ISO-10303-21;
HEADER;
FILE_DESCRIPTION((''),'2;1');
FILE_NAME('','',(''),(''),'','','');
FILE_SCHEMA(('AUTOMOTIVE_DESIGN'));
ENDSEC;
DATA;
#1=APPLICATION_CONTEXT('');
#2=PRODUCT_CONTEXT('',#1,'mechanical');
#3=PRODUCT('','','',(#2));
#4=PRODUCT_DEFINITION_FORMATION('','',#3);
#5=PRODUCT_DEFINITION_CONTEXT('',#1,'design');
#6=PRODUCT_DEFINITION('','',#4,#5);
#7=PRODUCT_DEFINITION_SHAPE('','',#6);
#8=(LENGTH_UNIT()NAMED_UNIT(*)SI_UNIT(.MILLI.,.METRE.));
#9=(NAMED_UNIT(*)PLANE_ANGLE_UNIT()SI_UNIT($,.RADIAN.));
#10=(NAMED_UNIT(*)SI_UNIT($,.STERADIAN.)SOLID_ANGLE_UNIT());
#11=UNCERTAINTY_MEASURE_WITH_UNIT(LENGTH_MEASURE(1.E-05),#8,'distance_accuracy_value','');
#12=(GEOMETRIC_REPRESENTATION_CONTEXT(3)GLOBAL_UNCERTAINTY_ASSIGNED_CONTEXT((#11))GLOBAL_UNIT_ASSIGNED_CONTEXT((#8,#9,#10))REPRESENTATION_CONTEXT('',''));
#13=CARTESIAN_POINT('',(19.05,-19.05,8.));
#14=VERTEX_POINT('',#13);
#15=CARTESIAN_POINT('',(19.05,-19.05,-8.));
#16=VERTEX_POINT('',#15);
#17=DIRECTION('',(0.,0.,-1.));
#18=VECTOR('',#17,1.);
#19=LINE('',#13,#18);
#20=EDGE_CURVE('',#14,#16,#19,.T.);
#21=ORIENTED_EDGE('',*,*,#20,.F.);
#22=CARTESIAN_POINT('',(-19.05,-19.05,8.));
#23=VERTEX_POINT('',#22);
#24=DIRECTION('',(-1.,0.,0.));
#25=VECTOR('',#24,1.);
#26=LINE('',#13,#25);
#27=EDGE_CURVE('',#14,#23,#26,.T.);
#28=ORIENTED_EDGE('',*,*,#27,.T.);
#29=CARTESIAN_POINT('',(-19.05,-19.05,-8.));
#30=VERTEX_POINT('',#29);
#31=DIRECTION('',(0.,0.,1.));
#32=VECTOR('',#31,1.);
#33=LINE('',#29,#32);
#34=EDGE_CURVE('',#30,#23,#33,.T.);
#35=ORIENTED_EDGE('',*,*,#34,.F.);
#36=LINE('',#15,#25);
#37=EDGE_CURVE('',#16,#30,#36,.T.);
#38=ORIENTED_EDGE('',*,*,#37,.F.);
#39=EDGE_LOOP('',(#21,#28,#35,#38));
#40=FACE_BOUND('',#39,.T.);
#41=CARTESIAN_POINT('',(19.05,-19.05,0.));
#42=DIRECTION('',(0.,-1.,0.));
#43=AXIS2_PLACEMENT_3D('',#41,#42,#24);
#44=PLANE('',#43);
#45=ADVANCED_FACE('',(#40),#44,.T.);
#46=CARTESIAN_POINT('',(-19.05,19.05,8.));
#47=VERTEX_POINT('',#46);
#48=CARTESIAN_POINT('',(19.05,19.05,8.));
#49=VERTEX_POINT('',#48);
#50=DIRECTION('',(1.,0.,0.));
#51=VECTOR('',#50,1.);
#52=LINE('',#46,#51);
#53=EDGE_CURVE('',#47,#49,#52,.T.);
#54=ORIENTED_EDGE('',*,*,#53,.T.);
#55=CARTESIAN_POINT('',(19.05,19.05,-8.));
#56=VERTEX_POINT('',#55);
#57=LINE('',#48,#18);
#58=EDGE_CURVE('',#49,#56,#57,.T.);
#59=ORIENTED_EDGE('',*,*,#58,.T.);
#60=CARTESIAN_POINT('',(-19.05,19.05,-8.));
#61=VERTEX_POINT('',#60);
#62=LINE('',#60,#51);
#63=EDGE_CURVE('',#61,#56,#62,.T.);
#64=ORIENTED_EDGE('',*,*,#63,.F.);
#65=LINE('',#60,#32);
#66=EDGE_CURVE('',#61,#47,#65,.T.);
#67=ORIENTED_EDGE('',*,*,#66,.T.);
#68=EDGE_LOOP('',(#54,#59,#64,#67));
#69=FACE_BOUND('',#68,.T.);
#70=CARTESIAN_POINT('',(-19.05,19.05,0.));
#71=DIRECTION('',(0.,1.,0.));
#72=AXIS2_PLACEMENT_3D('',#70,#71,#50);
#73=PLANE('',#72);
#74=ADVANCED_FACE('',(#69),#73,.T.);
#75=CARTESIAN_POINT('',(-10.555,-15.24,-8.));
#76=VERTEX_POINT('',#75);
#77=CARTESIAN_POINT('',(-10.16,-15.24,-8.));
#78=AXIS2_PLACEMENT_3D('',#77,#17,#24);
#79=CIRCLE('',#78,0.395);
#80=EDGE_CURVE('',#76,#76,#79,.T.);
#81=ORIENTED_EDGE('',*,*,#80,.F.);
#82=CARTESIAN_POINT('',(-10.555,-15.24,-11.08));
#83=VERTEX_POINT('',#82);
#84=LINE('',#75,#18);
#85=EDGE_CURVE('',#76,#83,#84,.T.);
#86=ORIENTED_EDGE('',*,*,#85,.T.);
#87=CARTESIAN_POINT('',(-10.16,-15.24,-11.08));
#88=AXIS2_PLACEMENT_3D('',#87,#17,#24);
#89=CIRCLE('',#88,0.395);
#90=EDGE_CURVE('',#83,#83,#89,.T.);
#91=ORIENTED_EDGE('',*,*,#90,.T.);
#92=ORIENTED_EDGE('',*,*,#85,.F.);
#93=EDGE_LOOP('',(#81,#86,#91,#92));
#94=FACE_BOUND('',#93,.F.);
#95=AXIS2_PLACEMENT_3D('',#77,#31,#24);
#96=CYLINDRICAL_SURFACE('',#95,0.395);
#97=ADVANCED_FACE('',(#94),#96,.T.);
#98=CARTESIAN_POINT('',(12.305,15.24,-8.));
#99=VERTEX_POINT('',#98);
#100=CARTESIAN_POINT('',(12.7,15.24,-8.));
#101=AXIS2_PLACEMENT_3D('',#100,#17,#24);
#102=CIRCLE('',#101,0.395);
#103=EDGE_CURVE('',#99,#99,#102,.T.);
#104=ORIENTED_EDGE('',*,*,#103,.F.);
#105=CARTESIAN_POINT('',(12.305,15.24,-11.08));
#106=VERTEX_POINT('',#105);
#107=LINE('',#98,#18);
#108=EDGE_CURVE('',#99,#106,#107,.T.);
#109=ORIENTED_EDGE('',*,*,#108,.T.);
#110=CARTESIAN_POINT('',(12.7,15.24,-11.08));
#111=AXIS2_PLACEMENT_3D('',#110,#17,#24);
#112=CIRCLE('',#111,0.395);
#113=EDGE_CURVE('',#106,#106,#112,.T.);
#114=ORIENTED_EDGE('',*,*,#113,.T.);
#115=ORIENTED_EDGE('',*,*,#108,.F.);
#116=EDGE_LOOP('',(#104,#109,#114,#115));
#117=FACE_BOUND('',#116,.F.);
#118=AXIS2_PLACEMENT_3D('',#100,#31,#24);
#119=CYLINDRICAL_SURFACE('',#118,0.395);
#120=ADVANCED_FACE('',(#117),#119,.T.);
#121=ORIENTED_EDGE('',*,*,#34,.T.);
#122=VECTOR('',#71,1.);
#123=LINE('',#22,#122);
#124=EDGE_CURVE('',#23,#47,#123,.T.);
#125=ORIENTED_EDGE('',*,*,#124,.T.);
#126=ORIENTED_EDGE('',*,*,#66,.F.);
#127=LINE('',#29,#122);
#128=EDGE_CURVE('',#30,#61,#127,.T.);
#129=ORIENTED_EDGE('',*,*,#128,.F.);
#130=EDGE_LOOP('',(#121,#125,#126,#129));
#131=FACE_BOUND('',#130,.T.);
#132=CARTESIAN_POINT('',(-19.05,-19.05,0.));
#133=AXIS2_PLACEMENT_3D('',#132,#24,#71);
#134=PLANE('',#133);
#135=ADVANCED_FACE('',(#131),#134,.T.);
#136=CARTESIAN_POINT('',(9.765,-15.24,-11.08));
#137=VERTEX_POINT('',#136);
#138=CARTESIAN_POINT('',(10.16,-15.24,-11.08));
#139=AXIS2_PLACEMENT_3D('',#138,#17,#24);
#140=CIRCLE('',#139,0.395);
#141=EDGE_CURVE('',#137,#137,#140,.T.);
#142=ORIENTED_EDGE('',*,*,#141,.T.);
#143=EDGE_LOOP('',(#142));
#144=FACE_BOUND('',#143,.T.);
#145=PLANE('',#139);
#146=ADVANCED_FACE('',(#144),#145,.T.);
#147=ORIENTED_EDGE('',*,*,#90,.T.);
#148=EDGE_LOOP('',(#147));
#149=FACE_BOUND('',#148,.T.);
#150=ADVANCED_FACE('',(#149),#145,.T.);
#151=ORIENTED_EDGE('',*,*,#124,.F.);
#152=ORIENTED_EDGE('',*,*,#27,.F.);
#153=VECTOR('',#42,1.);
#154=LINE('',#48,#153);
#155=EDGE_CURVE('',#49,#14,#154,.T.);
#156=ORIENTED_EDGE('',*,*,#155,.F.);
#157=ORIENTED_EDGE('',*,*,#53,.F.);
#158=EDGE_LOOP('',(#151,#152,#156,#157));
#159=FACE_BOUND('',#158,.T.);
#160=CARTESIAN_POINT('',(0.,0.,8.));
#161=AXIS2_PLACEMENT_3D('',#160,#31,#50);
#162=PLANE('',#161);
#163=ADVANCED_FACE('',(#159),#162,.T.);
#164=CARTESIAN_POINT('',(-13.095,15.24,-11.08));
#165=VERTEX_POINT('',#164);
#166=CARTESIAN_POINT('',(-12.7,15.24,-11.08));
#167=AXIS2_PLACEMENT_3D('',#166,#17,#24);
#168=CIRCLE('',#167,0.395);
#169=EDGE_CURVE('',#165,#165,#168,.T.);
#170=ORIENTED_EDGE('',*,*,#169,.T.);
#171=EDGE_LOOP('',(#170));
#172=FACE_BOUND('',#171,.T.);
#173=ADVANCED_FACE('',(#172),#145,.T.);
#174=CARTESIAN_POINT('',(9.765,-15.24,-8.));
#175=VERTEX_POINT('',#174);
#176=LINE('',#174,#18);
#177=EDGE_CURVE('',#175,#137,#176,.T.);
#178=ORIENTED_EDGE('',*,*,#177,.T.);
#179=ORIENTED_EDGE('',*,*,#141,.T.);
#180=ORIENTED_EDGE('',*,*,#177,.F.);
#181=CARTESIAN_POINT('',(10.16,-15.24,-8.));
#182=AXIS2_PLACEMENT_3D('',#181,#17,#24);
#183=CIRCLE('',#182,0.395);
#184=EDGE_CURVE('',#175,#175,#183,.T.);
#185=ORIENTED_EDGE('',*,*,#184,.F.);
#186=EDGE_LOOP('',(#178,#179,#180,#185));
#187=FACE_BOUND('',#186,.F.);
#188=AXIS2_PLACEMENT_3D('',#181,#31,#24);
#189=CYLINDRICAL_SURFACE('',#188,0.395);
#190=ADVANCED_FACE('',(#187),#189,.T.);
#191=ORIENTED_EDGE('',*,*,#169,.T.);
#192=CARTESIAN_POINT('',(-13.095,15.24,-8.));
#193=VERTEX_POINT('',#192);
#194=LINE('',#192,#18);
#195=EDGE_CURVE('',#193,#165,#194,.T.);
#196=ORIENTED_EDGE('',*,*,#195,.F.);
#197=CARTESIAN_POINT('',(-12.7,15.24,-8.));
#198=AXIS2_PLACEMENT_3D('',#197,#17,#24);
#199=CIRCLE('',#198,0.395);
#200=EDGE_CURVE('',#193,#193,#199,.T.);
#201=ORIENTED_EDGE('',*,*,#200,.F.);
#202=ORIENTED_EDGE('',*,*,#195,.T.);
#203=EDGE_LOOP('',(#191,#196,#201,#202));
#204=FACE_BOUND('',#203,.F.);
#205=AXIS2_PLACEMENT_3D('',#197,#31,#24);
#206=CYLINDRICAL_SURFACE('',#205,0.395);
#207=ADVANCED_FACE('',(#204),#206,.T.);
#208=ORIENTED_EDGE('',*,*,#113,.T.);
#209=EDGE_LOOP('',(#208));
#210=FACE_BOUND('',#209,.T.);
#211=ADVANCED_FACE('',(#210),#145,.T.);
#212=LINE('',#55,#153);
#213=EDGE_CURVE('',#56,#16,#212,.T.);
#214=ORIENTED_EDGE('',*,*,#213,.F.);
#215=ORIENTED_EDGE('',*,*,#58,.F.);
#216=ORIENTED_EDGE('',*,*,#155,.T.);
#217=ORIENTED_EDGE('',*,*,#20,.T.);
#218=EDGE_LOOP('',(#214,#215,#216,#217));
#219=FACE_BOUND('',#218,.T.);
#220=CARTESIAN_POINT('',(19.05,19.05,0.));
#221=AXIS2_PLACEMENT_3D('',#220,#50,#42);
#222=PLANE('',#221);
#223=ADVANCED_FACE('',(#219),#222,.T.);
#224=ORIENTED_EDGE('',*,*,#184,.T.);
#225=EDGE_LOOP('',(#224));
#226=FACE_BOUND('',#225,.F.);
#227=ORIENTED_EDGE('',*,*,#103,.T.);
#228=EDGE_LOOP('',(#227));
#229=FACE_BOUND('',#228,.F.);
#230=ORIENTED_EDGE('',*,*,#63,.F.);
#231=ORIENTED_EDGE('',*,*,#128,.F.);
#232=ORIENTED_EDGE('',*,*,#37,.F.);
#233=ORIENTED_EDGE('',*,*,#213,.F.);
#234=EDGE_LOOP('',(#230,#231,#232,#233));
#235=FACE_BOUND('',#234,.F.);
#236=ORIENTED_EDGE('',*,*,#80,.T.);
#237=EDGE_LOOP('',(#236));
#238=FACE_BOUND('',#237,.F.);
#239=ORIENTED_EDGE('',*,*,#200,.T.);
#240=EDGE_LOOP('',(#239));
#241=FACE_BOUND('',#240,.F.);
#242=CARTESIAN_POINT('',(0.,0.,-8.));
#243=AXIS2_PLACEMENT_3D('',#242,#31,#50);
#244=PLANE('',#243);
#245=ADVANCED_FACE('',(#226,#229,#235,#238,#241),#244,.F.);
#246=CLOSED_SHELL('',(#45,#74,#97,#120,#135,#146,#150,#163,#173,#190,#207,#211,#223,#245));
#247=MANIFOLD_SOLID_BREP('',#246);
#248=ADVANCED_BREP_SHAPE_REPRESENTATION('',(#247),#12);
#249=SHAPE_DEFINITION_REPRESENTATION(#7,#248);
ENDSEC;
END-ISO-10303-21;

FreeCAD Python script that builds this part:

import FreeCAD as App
import Part
import Sketcher

V = App.Vector


def add_polygon(sketch, points):
    """Adds a closed chain of lines whose ends are joined by coincident constraints."""
    first, n = sketch.GeometryCount, len(points)
    for a, b in zip(points, points[1:] + points[:1]):
        sketch.addGeometry(Part.LineSegment(App.Vector(*a, 0), App.Vector(*b, 0)), False)
    for i in range(n):
        sketch.addConstraint(Sketcher.Constraint("Coincident", first + i, 2, first + (i + 1) % n, 1))

doc = App.newDocument("Part")
params = doc.addObject("Spreadsheet::Sheet", "Params")
for row, (alias, value) in enumerate([
    ("sketch1_width", "38.1 mm"),
    ("pad1_length", "16 mm"),
    ("sketch2_diameter", "0.79 mm"),
    ("pad2_length", "5.08 mm"),
    ("sketch3_diameter", "0.79 mm"),
    ("pocket1_length", "2 mm"),
], start=1):
    params.set(f"A{row}", alias)
    params.set(f"B{row}", "=" + value)
    params.setAlias(f"B{row}", alias)

body = doc.addObject("PartDesign::Body", "Body")

# Sketch on XY plane
sketch1 = doc.addObject("Sketcher::SketchObject", "Sketch")
body.addObject(sketch1)
sketch1.AttachmentSupport = (doc.XY_Plane, [""])
sketch1.MapMode = "FlatFace"
add_polygon(sketch1, [(19, 19), (-19, 19), (-19, -19), (19, -19)])  # lines 0-3
sketch1.addConstraint([
    Sketcher.Constraint("Horizontal", 0),
    Sketcher.Constraint("Vertical", 1),
    Sketcher.Constraint("Horizontal", 2),
    Sketcher.Constraint("Vertical", 3),
    Sketcher.Constraint("Symmetric", 0, 2, 2, 2, -1, 1),
    Sketcher.Constraint("Equal", 2, 1),
    Sketcher.Constraint("DistanceX", 0, 2, 0, 1, 38.1),
])
sketch1.setExpression("Constraints[10]", "Params.sketch1_width")
pad1 = doc.addObject("PartDesign::Pad", "Pad")
body.addObject(pad1)
pad1.Profile = sketch1
pad1.setExpression("Length", "Params.pad1_length")
pad1.Midplane = True

# Sketch on XY plane
sketch2 = doc.addObject("Sketcher::SketchObject", "Sketch001")
body.addObject(sketch2)
sketch2.AttachmentSupport = (doc.XY_Plane, [""])
sketch2.MapMode = "FlatFace"
sketch2.AttachmentOffset = App.Placement(V(0, 0, -8), App.Rotation())
sketch2.addGeometry([
    Part.Circle(V(10.16, -15.24, 0), V(0, 0, 1), 0.4),
    Part.Circle(V(12.7, 15.24, 0), V(0, 0, 1), 0.4),
    Part.Circle(V(-12.7, 15.24, 0), V(0, 0, 1), 0.4),
    Part.Circle(V(-10.16, -15.24, 0), V(0, 0, 1), 0.4),
], False)
sketch2.addConstraint([
    Sketcher.Constraint("Equal", 0, 1),
    Sketcher.Constraint("Equal", 1, 2),
    Sketcher.Constraint("Equal", 2, 3),
    Sketcher.Constraint("Symmetric", 1, 3, 2, 3, -2),
    Sketcher.Constraint("Symmetric", 0, 3, 3, 3, -2),
    Sketcher.Constraint("Diameter", 0, 0.79),
    Sketcher.Constraint("DistanceX", -1, 1, 1, 3, 12.7),
    Sketcher.Constraint("DistanceX", -1, 1, 0, 3, 10.16),
    Sketcher.Constraint("DistanceY", 0, 3, -1, 1, 15.24),
    Sketcher.Constraint("DistanceY", -1, 1, 1, 3, 15.24),
])
sketch2.setExpression("Constraints[5]", "Params.sketch2_diameter")
pad2 = doc.addObject("PartDesign::Pad", "Pad001")
body.addObject(pad2)
pad2.Profile = sketch2
pad2.setExpression("Length", "Params.pad2_length")
pad2.Reversed = True

# Sketch on XY plane
sketch3 = doc.addObject("Sketcher::SketchObject", "Sketch002")
body.addObject(sketch3)
sketch3.AttachmentSupport = (doc.XY_Plane, [""])
sketch3.MapMode = "FlatFace"
sketch3.AttachmentOffset = App.Placement(V(0, 0, -13.08), App.Rotation())
sketch3.addGeometry([
    Part.Circle(V(10.16, -15.24, 0), V(0, 0, 1), 0.4),
    Part.Circle(V(-10.16, -15.24, 0), V(0, 0, 1), 0.4),
    Part.Circle(V(-12.7, 15.24, 0), V(0, 0, 1), 0.4),
    Part.Circle(V(12.7, 15.24, 0), V(0, 0, 1), 0.4),
], False)
sketch3.addConstraint([
    Sketcher.Constraint("Equal", 0, 1),
    Sketcher.Constraint("Equal", 1, 2),
    Sketcher.Constraint("Equal", 2, 3),
    Sketcher.Constraint("Symmetric", 0, 3, 1, 3, -2),
    Sketcher.Constraint("Symmetric", 2, 3, 3, 3, -2),
    Sketcher.Constraint("Diameter", 0, 0.79),
    Sketcher.Constraint("DistanceX", 2, 3, -1, 1, 12.7),
    Sketcher.Constraint("DistanceX", -1, 1, 0, 3, 10.16),
    Sketcher.Constraint("DistanceY", 0, 3, -1, 1, 15.24),
    Sketcher.Constraint("DistanceY", -1, 1, 2, 3, 15.24),
])
sketch3.setExpression("Constraints[5]", "Params.sketch3_diameter")
pocket1 = doc.addObject("PartDesign::Pocket", "Pocket")
body.addObject(pocket1)
pocket1.Profile = sketch3
pocket1.setExpression("Length", "Params.pocket1_length")
pocket1.Reversed = True

doc.recompute()
